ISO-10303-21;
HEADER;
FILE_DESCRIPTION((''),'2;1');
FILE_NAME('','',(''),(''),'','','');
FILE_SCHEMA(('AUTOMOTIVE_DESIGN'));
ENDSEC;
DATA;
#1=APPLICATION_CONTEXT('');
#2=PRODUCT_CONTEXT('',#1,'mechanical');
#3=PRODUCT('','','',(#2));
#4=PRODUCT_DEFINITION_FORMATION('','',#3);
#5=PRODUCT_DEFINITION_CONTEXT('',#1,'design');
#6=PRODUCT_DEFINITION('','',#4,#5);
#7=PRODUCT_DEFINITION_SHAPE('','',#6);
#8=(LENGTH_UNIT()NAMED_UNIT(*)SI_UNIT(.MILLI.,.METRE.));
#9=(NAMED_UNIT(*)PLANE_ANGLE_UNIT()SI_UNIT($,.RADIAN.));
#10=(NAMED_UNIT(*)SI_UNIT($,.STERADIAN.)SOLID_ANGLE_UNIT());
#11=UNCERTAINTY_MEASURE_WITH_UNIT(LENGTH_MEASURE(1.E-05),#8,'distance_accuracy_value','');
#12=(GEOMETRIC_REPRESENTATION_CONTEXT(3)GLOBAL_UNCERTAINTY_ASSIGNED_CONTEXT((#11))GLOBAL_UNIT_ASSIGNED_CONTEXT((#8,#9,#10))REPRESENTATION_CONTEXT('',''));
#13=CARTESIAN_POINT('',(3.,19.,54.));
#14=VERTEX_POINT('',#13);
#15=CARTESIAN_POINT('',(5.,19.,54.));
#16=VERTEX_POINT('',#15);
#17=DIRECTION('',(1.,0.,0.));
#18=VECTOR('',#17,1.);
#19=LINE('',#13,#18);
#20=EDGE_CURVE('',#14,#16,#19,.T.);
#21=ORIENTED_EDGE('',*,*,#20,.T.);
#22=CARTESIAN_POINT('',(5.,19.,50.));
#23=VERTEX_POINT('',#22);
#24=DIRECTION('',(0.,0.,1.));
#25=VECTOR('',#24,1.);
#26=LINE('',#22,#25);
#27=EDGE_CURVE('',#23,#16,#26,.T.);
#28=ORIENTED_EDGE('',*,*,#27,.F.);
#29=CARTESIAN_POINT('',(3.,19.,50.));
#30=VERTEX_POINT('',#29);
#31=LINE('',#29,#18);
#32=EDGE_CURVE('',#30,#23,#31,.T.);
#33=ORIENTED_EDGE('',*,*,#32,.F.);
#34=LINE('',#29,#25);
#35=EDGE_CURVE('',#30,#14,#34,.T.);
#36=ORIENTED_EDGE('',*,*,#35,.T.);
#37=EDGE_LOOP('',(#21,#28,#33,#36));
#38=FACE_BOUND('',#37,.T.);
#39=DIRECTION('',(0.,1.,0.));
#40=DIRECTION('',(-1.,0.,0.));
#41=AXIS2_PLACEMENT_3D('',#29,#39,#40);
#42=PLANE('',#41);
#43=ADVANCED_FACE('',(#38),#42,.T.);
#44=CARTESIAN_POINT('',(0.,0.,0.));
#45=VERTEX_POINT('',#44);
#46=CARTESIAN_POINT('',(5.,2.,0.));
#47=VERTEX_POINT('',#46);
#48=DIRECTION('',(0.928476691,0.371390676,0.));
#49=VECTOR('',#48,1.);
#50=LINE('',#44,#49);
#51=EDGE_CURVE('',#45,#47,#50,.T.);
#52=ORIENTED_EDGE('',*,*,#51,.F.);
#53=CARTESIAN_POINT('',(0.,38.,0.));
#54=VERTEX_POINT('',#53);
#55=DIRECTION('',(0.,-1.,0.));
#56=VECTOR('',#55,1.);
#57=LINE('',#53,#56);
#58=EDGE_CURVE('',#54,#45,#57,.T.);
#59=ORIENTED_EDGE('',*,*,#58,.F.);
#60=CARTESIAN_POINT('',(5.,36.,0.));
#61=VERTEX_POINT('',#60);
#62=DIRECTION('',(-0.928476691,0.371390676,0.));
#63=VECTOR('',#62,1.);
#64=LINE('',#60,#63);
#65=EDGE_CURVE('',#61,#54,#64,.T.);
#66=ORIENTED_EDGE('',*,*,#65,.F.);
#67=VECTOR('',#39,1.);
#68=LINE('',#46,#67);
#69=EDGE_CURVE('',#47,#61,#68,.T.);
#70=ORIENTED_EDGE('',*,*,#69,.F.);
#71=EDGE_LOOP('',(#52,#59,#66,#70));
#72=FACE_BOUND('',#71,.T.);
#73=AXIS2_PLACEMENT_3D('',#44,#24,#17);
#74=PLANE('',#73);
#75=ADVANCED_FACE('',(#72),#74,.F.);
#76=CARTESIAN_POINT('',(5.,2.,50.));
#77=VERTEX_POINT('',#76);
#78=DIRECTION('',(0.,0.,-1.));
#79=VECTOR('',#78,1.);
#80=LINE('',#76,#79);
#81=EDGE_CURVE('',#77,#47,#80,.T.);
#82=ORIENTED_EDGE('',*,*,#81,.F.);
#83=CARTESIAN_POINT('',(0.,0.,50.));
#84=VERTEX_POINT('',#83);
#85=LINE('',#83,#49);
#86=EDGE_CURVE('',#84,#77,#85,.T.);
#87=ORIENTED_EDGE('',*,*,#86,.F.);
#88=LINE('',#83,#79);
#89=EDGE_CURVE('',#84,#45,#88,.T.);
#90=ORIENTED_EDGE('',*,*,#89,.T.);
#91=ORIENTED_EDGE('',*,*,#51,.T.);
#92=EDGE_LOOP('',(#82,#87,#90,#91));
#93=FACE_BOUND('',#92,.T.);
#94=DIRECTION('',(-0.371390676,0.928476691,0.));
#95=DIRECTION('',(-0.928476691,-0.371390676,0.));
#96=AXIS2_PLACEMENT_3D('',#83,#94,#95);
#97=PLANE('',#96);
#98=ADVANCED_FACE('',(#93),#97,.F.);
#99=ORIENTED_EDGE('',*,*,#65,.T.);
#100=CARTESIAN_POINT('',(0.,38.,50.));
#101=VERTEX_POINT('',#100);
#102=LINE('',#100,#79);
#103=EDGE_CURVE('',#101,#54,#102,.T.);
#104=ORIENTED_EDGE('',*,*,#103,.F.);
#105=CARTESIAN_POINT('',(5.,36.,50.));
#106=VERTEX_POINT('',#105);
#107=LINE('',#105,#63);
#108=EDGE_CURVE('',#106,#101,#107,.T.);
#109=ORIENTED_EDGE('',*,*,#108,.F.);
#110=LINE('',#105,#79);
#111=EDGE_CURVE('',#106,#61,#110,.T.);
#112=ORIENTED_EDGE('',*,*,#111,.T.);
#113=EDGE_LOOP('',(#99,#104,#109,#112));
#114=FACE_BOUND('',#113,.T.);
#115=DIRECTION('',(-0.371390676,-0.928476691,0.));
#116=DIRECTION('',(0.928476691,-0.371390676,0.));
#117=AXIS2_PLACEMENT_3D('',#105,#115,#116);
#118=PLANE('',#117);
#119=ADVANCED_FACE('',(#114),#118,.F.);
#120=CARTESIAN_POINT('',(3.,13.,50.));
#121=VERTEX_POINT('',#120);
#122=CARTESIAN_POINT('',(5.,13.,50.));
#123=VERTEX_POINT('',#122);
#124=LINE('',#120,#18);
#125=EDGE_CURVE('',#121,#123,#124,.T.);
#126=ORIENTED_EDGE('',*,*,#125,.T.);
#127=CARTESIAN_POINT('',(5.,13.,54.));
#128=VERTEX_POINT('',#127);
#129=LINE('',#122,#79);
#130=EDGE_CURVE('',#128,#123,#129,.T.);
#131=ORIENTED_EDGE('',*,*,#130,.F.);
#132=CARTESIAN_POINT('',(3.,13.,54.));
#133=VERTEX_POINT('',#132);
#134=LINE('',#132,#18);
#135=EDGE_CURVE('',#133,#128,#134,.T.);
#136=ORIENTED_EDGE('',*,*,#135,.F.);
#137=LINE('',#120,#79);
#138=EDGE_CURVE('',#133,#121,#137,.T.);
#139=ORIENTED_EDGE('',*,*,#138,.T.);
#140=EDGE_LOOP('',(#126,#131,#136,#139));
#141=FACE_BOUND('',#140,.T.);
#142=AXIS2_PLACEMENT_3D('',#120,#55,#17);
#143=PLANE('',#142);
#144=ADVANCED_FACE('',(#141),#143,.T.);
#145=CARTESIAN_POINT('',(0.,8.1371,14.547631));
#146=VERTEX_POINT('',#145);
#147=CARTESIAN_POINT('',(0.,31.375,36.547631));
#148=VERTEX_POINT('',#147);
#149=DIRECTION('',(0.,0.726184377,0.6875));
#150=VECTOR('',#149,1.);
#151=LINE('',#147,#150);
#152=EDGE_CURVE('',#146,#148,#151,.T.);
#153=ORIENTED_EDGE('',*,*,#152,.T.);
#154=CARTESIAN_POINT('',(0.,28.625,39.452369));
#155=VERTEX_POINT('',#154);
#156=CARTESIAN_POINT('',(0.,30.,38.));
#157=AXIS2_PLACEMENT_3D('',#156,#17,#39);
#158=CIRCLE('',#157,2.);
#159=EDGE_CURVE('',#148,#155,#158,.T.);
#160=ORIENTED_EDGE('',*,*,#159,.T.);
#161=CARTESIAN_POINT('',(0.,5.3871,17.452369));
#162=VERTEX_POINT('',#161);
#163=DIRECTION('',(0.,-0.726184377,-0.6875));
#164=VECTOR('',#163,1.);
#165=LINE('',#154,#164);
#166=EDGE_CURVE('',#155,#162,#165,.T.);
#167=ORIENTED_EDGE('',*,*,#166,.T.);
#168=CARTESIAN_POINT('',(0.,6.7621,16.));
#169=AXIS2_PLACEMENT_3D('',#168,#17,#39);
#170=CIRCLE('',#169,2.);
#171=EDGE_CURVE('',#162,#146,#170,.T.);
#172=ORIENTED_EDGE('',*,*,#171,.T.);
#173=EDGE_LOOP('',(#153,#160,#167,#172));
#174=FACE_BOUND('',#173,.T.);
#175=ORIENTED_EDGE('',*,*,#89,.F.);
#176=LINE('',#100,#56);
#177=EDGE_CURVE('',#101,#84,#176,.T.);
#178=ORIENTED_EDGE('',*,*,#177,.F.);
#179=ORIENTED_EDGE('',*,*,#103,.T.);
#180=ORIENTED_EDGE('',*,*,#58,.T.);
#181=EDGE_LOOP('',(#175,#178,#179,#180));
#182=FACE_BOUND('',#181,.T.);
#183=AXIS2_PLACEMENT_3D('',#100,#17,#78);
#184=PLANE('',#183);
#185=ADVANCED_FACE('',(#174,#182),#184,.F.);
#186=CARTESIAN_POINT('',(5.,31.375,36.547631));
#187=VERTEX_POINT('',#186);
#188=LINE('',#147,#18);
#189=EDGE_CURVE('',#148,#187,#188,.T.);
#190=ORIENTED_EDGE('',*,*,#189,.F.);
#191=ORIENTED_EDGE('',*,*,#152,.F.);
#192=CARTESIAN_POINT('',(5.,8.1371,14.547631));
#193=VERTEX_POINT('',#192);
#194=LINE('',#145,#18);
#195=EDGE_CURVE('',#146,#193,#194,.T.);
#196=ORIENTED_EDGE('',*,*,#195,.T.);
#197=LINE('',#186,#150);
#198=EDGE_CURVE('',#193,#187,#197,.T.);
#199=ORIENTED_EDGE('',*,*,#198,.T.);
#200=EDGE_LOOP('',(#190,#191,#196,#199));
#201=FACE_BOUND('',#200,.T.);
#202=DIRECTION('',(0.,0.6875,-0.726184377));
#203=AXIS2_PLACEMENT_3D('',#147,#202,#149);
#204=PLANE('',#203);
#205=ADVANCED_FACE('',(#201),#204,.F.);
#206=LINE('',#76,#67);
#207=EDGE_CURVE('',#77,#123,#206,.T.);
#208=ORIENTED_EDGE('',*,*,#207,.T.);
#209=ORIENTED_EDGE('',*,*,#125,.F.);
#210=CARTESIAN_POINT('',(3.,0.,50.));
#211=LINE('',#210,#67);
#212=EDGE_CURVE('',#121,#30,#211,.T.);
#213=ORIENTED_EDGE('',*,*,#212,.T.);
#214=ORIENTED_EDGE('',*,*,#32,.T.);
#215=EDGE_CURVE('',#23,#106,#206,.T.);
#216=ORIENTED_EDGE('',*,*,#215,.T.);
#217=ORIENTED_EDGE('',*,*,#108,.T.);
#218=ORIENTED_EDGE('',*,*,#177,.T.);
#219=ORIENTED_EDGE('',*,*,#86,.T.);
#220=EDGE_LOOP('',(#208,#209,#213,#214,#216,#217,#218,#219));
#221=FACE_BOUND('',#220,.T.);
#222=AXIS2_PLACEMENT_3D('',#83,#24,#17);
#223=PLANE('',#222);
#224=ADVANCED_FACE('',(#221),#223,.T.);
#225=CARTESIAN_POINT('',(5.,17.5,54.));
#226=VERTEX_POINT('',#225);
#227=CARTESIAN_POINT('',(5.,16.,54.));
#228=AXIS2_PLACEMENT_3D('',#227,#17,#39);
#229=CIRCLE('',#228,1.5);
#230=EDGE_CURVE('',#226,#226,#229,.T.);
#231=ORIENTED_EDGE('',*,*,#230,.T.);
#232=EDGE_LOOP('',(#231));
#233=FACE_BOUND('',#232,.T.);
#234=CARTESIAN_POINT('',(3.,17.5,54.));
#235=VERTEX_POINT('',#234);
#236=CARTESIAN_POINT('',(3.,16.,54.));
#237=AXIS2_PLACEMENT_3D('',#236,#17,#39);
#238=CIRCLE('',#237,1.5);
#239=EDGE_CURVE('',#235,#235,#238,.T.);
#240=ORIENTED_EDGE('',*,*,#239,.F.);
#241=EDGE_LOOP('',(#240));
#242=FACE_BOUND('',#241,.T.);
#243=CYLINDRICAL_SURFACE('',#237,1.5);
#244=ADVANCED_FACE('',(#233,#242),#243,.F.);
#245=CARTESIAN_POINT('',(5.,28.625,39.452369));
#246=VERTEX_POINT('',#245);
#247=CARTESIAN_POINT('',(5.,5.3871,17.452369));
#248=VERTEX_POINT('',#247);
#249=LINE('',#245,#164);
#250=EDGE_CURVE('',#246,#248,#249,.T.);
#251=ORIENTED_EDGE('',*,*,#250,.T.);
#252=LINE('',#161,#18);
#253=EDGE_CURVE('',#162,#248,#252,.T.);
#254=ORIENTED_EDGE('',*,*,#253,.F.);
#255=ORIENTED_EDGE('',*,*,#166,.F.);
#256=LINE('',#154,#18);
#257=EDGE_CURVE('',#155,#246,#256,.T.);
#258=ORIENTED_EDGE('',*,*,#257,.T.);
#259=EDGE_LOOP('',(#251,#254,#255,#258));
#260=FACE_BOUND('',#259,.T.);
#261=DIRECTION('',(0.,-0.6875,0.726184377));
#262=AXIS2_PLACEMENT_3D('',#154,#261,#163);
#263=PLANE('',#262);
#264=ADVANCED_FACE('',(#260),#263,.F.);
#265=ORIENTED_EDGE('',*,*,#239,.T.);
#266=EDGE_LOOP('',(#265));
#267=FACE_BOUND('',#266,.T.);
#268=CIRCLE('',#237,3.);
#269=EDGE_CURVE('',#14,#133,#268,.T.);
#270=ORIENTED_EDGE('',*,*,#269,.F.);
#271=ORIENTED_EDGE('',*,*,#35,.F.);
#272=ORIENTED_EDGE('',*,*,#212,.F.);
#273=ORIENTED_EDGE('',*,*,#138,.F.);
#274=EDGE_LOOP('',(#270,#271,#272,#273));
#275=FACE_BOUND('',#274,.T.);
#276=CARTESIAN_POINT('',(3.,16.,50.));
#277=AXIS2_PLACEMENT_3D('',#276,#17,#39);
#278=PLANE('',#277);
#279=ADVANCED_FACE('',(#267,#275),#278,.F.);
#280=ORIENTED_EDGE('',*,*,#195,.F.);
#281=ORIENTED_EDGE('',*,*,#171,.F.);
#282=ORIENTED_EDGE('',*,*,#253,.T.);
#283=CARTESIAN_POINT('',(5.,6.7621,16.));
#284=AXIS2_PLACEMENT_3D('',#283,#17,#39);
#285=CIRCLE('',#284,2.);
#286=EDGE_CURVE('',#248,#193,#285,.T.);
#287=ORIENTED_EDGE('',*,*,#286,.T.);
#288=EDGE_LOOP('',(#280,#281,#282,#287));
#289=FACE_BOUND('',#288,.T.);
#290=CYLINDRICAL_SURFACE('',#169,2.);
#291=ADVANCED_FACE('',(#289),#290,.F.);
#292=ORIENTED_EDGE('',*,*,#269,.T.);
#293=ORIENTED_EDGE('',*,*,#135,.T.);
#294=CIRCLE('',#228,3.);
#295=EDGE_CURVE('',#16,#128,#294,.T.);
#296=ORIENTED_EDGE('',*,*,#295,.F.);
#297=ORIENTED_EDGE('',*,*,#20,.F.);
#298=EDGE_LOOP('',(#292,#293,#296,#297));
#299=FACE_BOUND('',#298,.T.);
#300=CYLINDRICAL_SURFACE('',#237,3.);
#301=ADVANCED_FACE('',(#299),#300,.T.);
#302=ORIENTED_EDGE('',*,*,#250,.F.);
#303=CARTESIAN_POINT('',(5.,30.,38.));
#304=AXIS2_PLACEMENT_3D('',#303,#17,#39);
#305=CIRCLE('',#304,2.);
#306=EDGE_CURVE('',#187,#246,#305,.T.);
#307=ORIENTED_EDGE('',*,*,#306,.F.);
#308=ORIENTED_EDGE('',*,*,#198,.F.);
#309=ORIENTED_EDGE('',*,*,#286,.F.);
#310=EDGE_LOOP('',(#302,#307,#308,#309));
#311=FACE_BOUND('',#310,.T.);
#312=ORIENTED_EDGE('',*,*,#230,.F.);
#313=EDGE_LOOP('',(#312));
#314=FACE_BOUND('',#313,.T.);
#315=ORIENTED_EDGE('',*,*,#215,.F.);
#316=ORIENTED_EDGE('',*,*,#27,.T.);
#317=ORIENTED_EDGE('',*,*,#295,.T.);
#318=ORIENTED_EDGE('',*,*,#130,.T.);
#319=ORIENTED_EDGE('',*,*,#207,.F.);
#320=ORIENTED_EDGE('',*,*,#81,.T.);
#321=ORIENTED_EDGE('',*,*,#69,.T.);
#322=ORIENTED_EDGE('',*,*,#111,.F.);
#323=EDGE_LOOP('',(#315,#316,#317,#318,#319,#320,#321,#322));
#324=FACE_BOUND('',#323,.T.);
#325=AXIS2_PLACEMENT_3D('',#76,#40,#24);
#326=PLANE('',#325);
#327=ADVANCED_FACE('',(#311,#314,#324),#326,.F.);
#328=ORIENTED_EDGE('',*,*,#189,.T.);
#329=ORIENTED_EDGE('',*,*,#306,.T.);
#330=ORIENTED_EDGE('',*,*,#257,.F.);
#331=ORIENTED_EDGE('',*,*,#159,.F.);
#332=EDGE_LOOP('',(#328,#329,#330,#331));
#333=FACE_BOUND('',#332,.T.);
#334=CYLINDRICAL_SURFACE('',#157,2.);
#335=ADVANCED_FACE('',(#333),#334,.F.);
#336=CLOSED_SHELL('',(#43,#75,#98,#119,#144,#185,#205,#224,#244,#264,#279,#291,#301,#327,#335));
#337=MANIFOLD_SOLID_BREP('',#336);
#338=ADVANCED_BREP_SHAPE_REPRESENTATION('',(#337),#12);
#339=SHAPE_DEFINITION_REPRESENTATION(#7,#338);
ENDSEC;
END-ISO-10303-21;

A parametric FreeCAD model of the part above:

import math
import FreeCAD as App
import Part
import Sketcher

V = App.Vector

doc = App.newDocument("Part")
body = doc.addObject("PartDesign::Body", "Body")

sketch1 = doc.addObject("Sketcher::SketchObject", "Sketch")
body.addObject(sketch1)
sketch1.AttachmentSupport = (doc.XY_Plane, [""])
sketch1.MapMode = "FlatFace"
sketch1.addGeometry([
    Part.LineSegment(V(5, 36, 0), V(0, 38, 0)),
    Part.LineSegment(V(0, 38, 0), V(0, 0, 0)),
    Part.LineSegment(V(0, 0, 0), V(5, 2, 0)),
    Part.LineSegment(V(5, 2, 0), V(5, 36, 0)),
], False)
sketch1.addConstraint([
    Sketcher.Constraint("Coincident", 0, 2, 1, 1),
    Sketcher.Constraint("Coincident", 1, 2, 2, 1),
    Sketcher.Constraint("Coincident", 2, 2, 3, 1),
    Sketcher.Constraint("Coincident", 3, 2, 0, 1),
    Sketcher.Constraint("Vertical", 1),
    Sketcher.Constraint("Vertical", 3),
    Sketcher.Constraint("Coincident", 1, 2, -1, 1),
    Sketcher.Constraint("Equal", 0, 2),
    Sketcher.Constraint("DistanceY", 1, 2, 1, 1, 38.0),
    Sketcher.Constraint("DistanceY", 3, 1, 3, 2, 34.0),
    Sketcher.Constraint("DistanceX", -1, 1, 2, 2, 5.0),
])
pad1 = doc.addObject("PartDesign::Pad", "Pad")
body.addObject(pad1)
pad1.Profile = sketch1
pad1.Length = 50

sketch2 = doc.addObject("Sketcher::SketchObject", "Sketch001")
body.addObject(sketch2)
sketch2.AttachmentSupport = (doc.YZ_Plane, [""])
sketch2.MapMode = "FlatFace"
sketch2.AttachmentOffset = App.Placement(V(0, 0, 5), App.Rotation())
sketch2.addGeometry([
    Part.LineSegment(V(13, 54, 0), V(13, 50, 0)),
    Part.ArcOfCircle(Part.Circle(V(16, 50, 0), V(0, 0, 1), 3), math.radians(180), math.radians(360)),
    Part.LineSegment(V(19, 50, 0), V(19, 54, 0)),
    Part.ArcOfCircle(Part.Circle(V(16, 54, 0), V(0, 0, 1), 3), math.radians(0), math.radians(180)),
    Part.Circle(V(16, 54, 0), V(0, 0, 1), 1.5),
], False)
sketch2.addConstraint([
    Sketcher.Constraint("Tangent", 0, 2, 1, 1),
    Sketcher.Constraint("Tangent", 1, 2, 2, 1),
    Sketcher.Constraint("Tangent", 2, 2, 3, 1),
    Sketcher.Constraint("Tangent", 3, 2, 0, 1),
    Sketcher.Constraint("Vertical", 0),
    Sketcher.Constraint("Vertical", 2),
    Sketcher.Constraint("Coincident", 4, 3, 3, 3),
    Sketcher.Constraint("Diameter", 4, 3.0),
    Sketcher.Constraint("Radius", 1, 3.0),
    Sketcher.Constraint("DistanceY", 0, 2, 0, 1, 4.0),
    Sketcher.Constraint("DistanceX", -1, 1, 1, 3, 16.0),
    Sketcher.Constraint("DistanceY", -1, 1, 1, 3, 50.0),
])
pad2 = doc.addObject("PartDesign::Pad", "Pad001")
body.addObject(pad2)
pad2.Profile = sketch2
pad2.Length = 2
pad2.Reversed = True

sketch3 = doc.addObject("Sketcher::SketchObject", "Sketch002")
body.addObject(sketch3)
sketch3.AttachmentSupport = (doc.YZ_Plane, [""])
sketch3.MapMode = "FlatFace"
sketch3.AttachmentOffset = App.Placement(V(0, 0, 5), App.Rotation())
sketch3.addGeometry([
    Part.LineSegment(V(8.1371, 14.547631, 0), V(31.375, 36.547631, 0)),
    Part.ArcOfCircle(Part.Circle(V(30, 38, 0), V(0, 0, 1), 2), math.radians(-46.567463), math.radians(133.432537)),
    Part.LineSegment(V(28.625, 39.452369, 0), V(5.3871, 17.452369, 0)),
    Part.ArcOfCircle(Part.Circle(V(6.7621, 16, 0), V(0, 0, 1), 2), math.radians(133.432537), math.radians(313.432537)),
], False)
sketch3.addConstraint([
    Sketcher.Constraint("Tangent", 0, 2, 1, 1),
    Sketcher.Constraint("Tangent", 1, 2, 2, 1),
    Sketcher.Constraint("Tangent", 2, 2, 3, 1),
    Sketcher.Constraint("Tangent", 3, 2, 0, 1),
    Sketcher.Constraint("Equal", 1, 3),
    Sketcher.Constraint("Radius", 1, 2.0),
    Sketcher.Constraint("Distance", 0, 32.0),
    Sketcher.Constraint("DistanceX", -1, 1, 1, 3, 30.0),
    Sketcher.Constraint("DistanceY", -1, 1, 1, 3, 38.0),
    Sketcher.Constraint("DistanceY", -1, 1, 3, 3, 16.0),
])
pocket1 = doc.addObject("PartDesign::Pocket", "Pocket")
body.addObject(pocket1)
pocket1.Profile = sketch3
pocket1.Type = "ThroughAll"

doc.recompute()
